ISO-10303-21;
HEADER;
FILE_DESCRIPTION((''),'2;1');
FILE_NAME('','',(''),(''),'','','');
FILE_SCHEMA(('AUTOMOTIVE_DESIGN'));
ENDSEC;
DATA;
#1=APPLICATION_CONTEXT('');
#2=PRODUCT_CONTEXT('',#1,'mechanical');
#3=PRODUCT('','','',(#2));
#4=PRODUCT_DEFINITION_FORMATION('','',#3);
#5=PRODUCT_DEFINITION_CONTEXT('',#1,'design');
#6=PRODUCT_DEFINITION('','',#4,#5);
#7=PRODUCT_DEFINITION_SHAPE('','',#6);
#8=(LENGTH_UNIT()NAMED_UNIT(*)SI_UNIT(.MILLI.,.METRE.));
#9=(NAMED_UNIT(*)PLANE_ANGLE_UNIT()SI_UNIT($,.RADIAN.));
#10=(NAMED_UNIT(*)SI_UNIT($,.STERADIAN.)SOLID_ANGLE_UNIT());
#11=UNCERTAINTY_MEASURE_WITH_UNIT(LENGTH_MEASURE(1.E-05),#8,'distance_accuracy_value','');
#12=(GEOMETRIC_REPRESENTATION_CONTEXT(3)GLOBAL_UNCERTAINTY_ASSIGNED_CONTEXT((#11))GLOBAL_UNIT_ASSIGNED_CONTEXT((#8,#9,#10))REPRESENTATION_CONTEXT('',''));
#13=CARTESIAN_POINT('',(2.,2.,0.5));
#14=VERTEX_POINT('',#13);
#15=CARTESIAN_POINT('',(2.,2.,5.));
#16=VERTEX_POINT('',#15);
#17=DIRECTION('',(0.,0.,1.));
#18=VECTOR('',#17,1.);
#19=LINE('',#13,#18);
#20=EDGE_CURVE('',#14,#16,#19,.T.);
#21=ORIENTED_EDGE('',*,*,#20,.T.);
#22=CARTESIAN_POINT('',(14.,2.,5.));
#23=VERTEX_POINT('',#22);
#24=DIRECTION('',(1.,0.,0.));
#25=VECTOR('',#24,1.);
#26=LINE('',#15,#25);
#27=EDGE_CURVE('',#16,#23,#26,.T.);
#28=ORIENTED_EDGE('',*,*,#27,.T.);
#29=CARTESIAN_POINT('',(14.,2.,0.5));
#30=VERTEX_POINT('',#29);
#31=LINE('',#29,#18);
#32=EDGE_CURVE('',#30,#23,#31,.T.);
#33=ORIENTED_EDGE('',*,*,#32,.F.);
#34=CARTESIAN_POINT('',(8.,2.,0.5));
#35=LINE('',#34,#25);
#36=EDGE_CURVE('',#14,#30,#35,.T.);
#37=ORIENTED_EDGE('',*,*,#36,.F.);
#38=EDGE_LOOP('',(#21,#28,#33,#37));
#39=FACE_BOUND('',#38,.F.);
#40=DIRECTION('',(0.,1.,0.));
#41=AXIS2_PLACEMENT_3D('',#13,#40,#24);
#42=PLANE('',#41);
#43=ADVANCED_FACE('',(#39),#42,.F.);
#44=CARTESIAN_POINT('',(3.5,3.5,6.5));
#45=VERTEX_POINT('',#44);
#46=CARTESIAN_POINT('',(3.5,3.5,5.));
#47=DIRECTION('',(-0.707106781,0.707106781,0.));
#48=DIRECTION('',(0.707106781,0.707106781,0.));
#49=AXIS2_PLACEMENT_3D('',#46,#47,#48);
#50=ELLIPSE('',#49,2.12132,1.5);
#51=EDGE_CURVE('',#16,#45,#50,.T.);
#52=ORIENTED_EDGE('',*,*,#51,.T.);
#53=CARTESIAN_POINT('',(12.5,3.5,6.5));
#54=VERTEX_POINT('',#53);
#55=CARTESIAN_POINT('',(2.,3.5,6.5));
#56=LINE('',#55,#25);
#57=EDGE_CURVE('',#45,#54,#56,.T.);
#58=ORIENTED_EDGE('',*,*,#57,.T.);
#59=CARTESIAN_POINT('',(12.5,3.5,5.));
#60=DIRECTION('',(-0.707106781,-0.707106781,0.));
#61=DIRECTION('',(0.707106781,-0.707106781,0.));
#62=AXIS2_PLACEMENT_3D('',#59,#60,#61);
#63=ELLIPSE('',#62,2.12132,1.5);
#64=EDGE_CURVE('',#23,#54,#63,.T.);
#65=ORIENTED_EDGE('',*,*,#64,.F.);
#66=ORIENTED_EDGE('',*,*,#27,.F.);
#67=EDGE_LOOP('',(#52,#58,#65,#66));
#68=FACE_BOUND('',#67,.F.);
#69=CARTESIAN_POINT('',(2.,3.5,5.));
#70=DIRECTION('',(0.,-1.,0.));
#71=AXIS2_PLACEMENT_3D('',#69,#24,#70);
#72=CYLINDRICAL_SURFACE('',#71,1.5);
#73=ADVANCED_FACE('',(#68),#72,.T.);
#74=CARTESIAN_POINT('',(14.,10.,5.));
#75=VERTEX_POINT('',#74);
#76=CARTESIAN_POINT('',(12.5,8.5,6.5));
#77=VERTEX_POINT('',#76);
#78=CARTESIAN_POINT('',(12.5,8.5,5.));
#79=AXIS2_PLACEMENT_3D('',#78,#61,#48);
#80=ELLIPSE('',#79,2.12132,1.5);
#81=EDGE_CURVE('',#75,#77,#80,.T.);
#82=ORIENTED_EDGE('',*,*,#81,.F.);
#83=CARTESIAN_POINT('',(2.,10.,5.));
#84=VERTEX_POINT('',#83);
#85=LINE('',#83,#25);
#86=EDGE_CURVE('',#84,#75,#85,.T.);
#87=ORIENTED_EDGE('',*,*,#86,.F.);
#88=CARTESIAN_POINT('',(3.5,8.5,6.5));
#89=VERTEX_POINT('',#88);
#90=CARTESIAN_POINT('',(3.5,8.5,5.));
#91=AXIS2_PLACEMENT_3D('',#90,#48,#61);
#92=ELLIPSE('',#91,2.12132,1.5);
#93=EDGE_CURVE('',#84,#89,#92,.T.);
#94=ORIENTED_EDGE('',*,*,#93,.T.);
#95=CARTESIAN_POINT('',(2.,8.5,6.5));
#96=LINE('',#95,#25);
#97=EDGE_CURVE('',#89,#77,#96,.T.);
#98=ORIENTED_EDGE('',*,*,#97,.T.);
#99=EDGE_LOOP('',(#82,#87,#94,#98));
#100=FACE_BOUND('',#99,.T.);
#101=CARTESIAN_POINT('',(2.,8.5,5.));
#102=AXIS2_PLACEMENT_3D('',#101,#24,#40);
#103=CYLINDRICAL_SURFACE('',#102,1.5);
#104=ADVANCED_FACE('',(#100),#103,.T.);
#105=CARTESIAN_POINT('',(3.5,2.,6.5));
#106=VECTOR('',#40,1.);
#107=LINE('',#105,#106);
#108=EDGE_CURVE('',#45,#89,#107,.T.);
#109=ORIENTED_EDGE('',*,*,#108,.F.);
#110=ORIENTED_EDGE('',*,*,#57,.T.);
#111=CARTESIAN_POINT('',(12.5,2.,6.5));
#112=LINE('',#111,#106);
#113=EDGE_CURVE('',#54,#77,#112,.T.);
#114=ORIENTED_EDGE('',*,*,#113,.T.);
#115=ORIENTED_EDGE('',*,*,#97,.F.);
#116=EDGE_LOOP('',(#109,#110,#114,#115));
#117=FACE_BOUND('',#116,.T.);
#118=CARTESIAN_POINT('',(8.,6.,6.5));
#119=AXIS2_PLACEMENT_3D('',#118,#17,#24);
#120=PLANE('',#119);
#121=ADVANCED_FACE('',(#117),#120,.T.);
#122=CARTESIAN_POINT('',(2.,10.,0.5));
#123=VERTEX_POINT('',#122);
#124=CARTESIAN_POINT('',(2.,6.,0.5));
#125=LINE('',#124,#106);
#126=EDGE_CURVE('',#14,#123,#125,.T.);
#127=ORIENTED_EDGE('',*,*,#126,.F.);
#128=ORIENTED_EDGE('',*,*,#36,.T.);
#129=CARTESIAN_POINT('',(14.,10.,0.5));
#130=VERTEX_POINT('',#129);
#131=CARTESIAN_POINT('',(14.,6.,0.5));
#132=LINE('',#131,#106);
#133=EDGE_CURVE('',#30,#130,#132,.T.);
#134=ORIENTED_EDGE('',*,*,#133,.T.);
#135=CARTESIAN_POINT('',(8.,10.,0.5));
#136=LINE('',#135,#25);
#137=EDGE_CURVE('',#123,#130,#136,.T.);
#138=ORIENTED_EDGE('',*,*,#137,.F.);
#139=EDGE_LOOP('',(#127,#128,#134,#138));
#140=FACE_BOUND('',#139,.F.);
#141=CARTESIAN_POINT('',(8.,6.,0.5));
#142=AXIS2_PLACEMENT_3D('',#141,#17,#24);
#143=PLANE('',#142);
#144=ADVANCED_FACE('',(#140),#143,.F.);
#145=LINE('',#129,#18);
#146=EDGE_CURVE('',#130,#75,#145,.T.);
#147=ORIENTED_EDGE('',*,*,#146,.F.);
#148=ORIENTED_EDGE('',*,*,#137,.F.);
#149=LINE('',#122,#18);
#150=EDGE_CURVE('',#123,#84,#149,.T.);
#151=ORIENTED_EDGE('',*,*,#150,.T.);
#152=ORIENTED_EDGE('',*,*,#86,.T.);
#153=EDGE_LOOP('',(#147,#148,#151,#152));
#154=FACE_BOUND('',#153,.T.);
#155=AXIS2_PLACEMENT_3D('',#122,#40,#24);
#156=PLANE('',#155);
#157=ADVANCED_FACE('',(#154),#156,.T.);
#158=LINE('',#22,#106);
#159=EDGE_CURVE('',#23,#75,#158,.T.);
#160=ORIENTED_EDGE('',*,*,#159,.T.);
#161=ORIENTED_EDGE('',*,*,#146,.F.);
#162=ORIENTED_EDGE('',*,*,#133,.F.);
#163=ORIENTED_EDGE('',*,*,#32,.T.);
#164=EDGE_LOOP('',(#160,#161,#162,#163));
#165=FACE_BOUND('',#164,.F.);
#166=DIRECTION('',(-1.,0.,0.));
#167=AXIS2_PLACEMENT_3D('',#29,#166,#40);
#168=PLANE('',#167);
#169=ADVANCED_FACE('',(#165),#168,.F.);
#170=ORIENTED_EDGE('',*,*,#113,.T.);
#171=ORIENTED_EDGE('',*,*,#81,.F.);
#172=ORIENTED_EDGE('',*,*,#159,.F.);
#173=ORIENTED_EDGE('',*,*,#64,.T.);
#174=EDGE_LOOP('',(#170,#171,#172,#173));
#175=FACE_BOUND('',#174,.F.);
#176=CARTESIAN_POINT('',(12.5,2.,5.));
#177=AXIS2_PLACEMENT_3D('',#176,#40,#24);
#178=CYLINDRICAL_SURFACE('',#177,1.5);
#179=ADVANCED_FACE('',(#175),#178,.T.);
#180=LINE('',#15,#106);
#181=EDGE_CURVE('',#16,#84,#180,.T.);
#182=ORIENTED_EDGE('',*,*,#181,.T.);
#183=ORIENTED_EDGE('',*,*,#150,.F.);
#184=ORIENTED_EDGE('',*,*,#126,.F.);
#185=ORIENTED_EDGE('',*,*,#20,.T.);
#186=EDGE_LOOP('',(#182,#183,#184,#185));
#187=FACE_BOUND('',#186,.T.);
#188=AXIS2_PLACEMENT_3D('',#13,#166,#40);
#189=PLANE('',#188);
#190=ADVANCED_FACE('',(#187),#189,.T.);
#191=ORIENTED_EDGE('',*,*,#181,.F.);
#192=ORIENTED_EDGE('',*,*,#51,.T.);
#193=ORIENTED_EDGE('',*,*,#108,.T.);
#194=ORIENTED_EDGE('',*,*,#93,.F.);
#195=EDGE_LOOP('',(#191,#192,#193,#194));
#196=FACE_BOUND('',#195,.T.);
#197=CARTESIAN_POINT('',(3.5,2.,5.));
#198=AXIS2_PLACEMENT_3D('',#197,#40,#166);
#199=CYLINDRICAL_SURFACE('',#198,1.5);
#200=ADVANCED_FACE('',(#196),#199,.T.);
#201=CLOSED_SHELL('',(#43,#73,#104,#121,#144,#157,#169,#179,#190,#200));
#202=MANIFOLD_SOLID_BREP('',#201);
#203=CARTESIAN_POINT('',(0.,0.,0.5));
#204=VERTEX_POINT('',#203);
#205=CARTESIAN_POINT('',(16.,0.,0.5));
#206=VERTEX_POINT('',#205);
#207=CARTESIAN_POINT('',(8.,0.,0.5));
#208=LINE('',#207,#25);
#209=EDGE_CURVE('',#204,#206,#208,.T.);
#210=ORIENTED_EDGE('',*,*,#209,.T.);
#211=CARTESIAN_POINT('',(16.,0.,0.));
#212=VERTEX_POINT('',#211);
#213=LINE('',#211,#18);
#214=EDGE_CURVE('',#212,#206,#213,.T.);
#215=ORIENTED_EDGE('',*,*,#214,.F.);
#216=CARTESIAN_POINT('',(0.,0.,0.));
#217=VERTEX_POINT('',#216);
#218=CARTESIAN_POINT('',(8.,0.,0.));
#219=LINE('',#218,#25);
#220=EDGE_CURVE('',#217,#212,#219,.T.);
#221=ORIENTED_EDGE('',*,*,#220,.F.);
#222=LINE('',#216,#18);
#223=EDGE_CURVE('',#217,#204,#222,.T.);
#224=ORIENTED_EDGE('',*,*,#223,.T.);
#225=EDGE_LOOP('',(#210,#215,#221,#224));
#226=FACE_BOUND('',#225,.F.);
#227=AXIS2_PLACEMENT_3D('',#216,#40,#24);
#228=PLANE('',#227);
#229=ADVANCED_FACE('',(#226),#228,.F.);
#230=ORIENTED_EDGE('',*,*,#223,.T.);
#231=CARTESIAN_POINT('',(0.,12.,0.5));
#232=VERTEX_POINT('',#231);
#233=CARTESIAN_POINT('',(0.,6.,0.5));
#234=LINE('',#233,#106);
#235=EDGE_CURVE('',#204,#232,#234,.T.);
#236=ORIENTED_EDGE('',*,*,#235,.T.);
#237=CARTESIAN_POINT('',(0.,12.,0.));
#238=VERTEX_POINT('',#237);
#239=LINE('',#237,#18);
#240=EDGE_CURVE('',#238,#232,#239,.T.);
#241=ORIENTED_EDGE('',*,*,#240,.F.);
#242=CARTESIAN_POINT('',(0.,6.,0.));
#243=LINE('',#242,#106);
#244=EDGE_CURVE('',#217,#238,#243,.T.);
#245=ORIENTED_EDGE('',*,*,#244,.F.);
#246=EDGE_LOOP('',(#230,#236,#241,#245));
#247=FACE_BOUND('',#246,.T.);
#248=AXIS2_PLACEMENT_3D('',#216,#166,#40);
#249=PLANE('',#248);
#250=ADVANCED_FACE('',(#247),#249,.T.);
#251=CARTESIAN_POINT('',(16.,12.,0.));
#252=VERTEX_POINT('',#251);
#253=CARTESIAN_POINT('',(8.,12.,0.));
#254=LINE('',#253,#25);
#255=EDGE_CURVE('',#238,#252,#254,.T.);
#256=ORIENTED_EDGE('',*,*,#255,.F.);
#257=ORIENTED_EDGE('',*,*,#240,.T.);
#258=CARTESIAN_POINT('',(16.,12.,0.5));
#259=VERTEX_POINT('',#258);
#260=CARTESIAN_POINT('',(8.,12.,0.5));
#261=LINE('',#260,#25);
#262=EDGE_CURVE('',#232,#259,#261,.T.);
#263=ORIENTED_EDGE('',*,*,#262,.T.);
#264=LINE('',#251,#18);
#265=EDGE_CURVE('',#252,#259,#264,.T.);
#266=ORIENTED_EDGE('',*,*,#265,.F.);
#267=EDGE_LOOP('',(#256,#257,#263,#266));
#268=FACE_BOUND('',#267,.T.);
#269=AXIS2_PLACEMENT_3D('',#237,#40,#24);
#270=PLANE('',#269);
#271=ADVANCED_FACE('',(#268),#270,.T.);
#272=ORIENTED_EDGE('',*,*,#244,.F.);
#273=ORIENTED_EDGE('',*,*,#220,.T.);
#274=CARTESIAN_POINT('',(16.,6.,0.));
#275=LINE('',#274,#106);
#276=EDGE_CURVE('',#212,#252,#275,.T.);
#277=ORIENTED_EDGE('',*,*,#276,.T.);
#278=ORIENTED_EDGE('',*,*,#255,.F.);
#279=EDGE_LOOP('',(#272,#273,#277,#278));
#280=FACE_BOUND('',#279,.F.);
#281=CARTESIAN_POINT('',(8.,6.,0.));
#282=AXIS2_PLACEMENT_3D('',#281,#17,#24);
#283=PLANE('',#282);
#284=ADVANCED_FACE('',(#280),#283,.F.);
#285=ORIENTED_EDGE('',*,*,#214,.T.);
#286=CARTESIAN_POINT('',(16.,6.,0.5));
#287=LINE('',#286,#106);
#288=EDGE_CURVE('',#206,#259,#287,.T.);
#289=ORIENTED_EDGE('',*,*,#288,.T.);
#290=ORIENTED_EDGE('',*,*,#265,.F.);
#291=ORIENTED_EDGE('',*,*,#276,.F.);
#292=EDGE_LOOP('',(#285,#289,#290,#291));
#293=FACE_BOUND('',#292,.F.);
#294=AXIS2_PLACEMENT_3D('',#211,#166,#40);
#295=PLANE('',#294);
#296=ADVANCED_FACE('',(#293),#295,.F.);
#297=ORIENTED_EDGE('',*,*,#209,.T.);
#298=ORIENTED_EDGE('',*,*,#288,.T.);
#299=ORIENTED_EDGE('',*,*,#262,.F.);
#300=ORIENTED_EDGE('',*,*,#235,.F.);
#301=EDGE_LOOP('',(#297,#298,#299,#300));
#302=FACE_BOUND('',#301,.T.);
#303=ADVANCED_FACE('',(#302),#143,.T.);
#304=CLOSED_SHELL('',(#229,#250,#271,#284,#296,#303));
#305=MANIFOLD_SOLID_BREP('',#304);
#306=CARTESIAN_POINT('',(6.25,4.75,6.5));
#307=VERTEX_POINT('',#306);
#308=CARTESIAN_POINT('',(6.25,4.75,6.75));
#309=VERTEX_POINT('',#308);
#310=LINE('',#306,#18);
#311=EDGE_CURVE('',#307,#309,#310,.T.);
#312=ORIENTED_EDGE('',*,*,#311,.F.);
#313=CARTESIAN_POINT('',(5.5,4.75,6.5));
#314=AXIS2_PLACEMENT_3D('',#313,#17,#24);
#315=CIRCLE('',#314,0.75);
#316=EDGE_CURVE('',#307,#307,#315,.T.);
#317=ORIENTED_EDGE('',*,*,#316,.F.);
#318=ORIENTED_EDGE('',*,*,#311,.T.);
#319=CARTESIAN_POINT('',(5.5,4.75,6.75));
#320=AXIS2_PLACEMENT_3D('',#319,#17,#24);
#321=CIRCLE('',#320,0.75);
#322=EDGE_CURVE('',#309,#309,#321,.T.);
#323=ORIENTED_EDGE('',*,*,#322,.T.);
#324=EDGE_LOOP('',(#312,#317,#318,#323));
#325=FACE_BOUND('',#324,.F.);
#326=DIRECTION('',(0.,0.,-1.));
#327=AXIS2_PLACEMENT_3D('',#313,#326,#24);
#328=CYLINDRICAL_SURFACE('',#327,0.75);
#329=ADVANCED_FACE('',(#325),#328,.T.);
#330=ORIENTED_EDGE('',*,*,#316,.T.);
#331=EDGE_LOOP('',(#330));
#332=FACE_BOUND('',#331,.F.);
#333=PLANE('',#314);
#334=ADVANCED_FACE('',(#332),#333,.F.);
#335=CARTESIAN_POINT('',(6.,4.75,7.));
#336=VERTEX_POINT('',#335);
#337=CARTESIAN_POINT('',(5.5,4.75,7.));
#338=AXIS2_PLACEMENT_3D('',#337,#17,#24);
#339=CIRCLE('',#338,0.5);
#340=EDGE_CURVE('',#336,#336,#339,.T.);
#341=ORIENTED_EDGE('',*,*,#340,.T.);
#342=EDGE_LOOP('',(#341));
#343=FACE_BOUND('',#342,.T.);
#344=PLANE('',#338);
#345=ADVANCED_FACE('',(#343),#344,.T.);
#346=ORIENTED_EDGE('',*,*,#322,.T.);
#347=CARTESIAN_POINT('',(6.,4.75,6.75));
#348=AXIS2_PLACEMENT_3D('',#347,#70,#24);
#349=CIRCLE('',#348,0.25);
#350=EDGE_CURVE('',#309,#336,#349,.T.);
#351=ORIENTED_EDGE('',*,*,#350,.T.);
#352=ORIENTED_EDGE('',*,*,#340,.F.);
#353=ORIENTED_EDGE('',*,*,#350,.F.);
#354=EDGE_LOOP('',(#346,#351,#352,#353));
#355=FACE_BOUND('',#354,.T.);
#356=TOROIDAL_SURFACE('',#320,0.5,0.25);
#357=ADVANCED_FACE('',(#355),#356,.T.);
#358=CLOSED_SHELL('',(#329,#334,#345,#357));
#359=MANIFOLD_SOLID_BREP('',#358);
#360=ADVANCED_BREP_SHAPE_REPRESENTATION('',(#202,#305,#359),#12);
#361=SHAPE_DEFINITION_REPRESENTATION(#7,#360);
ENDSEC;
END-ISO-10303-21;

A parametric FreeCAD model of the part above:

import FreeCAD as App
import Part
import Sketcher

V = App.Vector
Q = App.Units.Quantity


def edges_at(feature, points):
    """Names of the edges that pass closest to the given points."""
    edges = feature.Shape.Edges
    near = lambda p: min(range(len(edges)), key=lambda i: edges[i].distToShape(Part.Vertex(*p))[0])
    return sorted({f"Edge{near(p) + 1}" for p in points})


def add_polygon(sketch, points):
    """Adds a closed chain of lines whose ends are joined by coincident constraints."""
    first, n = sketch.GeometryCount, len(points)
    for a, b in zip(points, points[1:] + points[:1]):
        sketch.addGeometry(Part.LineSegment(App.Vector(*a, 0), App.Vector(*b, 0)), False)
    for i in range(n):
        sketch.addConstraint(Sketcher.Constraint("Coincident", first + i, 2, first + (i + 1) % n, 1))

doc = App.newDocument("Part")
body = doc.addObject("PartDesign::Body", "Body")

# Sketch on XY plane
sketch1 = body.newObject("Sketcher::SketchObject", "Sketch")
sketch1.AttachmentSupport = (doc.getObject("XY_Plane"), [""])
sketch1.MapMode = "FlatFace"
add_polygon(sketch1, [(0, 12), (0, 0), (16, 0), (16, 12)])  # lines 0-3
sketch1.addConstraint(Sketcher.Constraint("Vertical", 0))
sketch1.addConstraint(Sketcher.Constraint("Horizontal", 1))
sketch1.addConstraint(Sketcher.Constraint("Vertical", 2))
sketch1.addConstraint(Sketcher.Constraint("Horizontal", 3))
sketch1.addConstraint(Sketcher.Constraint("Coincident", 0, 2, -1, 1))
sketch1.addConstraint(Sketcher.Constraint("DistanceX", 1, 1, 1, 2, Q("16 mm")))
sketch1.addConstraint(Sketcher.Constraint("DistanceY", 0, 2, 0, 1, Q("12 mm")))
pad1 = body.newObject("PartDesign::Pad", "Pad")
pad1.Profile = sketch1
pad1.Length = 0.5
body2 = doc.addObject("PartDesign::Body", "Body001")

# Sketch on XY plane
sketch2 = body2.newObject("Sketcher::SketchObject", "Sketch001")
sketch2.AttachmentSupport = (doc.getObject("XY_Plane001"), [""])
sketch2.MapMode = "FlatFace"
sketch2.AttachmentOffset = App.Placement(V(0, 0, 0.5), App.Rotation())
add_polygon(sketch2, [(2, 10), (2, 2), (14, 2), (14, 10)])  # lines 0-3
sketch2.addConstraint(Sketcher.Constraint("Vertical", 0))
sketch2.addConstraint(Sketcher.Constraint("Horizontal", 1))
sketch2.addConstraint(Sketcher.Constraint("Vertical", 2))
sketch2.addConstraint(Sketcher.Constraint("Horizontal", 3))
sketch2.addConstraint(Sketcher.Constraint("DistanceX", 1, 1, 1, 2, Q("12 mm")))
sketch2.addConstraint(Sketcher.Constraint("DistanceY", 0, 2, 0, 1, Q("8 mm")))
sketch2.addConstraint(Sketcher.Constraint("DistanceX", -1, 1, 0, 2, Q("2 mm")))
sketch2.addConstraint(Sketcher.Constraint("DistanceY", -1, 1, 0, 2, Q("2 mm")))
pad2 = body2.newObject("PartDesign::Pad", "Pad001")
pad2.Profile = sketch2
pad2.Length = 6
doc.recompute()

fillet = body2.newObject("PartDesign::Fillet", "Fillet")
fillet.Base = (pad2, edges_at(pad2, [
    (8, 2, 6.5),
    (14, 6, 6.5),
    (8, 10, 6.5),
    (2, 6, 6.5),
]))
fillet.Radius = 1.5
body3 = doc.addObject("PartDesign::Body", "Body002")

# Sketch on XY plane
sketch3 = body3.newObject("Sketcher::SketchObject", "Sketch002")
sketch3.AttachmentSupport = (doc.getObject("XY_Plane002"), [""])
sketch3.MapMode = "FlatFace"
sketch3.AttachmentOffset = App.Placement(V(0, 0, 6.5), App.Rotation())
sketch3.addGeometry(Part.Circle(V(5.5, 4.8, 0), V(0, 0, 1), 0.8), False)
sketch3.addConstraint(Sketcher.Constraint("Diameter", 0, Q("1.5 mm")))
sketch3.addConstraint(Sketcher.Constraint("DistanceX", -1, 1, 0, 3, Q("5.5 mm")))
sketch3.addConstraint(Sketcher.Constraint("DistanceY", -1, 1, 0, 3, Q("4.75 mm")))
pad3 = body3.newObject("PartDesign::Pad", "Pad002")
pad3.Profile = sketch3
pad3.Length = 0.5
doc.recompute()

fillet2 = body3.newObject("PartDesign::Fillet", "Fillet001")
fillet2.Base = (pad3, edges_at(pad3, [(4.75, 4.75, 7)]))
fillet2.Radius = 0.25

doc.recompute()
